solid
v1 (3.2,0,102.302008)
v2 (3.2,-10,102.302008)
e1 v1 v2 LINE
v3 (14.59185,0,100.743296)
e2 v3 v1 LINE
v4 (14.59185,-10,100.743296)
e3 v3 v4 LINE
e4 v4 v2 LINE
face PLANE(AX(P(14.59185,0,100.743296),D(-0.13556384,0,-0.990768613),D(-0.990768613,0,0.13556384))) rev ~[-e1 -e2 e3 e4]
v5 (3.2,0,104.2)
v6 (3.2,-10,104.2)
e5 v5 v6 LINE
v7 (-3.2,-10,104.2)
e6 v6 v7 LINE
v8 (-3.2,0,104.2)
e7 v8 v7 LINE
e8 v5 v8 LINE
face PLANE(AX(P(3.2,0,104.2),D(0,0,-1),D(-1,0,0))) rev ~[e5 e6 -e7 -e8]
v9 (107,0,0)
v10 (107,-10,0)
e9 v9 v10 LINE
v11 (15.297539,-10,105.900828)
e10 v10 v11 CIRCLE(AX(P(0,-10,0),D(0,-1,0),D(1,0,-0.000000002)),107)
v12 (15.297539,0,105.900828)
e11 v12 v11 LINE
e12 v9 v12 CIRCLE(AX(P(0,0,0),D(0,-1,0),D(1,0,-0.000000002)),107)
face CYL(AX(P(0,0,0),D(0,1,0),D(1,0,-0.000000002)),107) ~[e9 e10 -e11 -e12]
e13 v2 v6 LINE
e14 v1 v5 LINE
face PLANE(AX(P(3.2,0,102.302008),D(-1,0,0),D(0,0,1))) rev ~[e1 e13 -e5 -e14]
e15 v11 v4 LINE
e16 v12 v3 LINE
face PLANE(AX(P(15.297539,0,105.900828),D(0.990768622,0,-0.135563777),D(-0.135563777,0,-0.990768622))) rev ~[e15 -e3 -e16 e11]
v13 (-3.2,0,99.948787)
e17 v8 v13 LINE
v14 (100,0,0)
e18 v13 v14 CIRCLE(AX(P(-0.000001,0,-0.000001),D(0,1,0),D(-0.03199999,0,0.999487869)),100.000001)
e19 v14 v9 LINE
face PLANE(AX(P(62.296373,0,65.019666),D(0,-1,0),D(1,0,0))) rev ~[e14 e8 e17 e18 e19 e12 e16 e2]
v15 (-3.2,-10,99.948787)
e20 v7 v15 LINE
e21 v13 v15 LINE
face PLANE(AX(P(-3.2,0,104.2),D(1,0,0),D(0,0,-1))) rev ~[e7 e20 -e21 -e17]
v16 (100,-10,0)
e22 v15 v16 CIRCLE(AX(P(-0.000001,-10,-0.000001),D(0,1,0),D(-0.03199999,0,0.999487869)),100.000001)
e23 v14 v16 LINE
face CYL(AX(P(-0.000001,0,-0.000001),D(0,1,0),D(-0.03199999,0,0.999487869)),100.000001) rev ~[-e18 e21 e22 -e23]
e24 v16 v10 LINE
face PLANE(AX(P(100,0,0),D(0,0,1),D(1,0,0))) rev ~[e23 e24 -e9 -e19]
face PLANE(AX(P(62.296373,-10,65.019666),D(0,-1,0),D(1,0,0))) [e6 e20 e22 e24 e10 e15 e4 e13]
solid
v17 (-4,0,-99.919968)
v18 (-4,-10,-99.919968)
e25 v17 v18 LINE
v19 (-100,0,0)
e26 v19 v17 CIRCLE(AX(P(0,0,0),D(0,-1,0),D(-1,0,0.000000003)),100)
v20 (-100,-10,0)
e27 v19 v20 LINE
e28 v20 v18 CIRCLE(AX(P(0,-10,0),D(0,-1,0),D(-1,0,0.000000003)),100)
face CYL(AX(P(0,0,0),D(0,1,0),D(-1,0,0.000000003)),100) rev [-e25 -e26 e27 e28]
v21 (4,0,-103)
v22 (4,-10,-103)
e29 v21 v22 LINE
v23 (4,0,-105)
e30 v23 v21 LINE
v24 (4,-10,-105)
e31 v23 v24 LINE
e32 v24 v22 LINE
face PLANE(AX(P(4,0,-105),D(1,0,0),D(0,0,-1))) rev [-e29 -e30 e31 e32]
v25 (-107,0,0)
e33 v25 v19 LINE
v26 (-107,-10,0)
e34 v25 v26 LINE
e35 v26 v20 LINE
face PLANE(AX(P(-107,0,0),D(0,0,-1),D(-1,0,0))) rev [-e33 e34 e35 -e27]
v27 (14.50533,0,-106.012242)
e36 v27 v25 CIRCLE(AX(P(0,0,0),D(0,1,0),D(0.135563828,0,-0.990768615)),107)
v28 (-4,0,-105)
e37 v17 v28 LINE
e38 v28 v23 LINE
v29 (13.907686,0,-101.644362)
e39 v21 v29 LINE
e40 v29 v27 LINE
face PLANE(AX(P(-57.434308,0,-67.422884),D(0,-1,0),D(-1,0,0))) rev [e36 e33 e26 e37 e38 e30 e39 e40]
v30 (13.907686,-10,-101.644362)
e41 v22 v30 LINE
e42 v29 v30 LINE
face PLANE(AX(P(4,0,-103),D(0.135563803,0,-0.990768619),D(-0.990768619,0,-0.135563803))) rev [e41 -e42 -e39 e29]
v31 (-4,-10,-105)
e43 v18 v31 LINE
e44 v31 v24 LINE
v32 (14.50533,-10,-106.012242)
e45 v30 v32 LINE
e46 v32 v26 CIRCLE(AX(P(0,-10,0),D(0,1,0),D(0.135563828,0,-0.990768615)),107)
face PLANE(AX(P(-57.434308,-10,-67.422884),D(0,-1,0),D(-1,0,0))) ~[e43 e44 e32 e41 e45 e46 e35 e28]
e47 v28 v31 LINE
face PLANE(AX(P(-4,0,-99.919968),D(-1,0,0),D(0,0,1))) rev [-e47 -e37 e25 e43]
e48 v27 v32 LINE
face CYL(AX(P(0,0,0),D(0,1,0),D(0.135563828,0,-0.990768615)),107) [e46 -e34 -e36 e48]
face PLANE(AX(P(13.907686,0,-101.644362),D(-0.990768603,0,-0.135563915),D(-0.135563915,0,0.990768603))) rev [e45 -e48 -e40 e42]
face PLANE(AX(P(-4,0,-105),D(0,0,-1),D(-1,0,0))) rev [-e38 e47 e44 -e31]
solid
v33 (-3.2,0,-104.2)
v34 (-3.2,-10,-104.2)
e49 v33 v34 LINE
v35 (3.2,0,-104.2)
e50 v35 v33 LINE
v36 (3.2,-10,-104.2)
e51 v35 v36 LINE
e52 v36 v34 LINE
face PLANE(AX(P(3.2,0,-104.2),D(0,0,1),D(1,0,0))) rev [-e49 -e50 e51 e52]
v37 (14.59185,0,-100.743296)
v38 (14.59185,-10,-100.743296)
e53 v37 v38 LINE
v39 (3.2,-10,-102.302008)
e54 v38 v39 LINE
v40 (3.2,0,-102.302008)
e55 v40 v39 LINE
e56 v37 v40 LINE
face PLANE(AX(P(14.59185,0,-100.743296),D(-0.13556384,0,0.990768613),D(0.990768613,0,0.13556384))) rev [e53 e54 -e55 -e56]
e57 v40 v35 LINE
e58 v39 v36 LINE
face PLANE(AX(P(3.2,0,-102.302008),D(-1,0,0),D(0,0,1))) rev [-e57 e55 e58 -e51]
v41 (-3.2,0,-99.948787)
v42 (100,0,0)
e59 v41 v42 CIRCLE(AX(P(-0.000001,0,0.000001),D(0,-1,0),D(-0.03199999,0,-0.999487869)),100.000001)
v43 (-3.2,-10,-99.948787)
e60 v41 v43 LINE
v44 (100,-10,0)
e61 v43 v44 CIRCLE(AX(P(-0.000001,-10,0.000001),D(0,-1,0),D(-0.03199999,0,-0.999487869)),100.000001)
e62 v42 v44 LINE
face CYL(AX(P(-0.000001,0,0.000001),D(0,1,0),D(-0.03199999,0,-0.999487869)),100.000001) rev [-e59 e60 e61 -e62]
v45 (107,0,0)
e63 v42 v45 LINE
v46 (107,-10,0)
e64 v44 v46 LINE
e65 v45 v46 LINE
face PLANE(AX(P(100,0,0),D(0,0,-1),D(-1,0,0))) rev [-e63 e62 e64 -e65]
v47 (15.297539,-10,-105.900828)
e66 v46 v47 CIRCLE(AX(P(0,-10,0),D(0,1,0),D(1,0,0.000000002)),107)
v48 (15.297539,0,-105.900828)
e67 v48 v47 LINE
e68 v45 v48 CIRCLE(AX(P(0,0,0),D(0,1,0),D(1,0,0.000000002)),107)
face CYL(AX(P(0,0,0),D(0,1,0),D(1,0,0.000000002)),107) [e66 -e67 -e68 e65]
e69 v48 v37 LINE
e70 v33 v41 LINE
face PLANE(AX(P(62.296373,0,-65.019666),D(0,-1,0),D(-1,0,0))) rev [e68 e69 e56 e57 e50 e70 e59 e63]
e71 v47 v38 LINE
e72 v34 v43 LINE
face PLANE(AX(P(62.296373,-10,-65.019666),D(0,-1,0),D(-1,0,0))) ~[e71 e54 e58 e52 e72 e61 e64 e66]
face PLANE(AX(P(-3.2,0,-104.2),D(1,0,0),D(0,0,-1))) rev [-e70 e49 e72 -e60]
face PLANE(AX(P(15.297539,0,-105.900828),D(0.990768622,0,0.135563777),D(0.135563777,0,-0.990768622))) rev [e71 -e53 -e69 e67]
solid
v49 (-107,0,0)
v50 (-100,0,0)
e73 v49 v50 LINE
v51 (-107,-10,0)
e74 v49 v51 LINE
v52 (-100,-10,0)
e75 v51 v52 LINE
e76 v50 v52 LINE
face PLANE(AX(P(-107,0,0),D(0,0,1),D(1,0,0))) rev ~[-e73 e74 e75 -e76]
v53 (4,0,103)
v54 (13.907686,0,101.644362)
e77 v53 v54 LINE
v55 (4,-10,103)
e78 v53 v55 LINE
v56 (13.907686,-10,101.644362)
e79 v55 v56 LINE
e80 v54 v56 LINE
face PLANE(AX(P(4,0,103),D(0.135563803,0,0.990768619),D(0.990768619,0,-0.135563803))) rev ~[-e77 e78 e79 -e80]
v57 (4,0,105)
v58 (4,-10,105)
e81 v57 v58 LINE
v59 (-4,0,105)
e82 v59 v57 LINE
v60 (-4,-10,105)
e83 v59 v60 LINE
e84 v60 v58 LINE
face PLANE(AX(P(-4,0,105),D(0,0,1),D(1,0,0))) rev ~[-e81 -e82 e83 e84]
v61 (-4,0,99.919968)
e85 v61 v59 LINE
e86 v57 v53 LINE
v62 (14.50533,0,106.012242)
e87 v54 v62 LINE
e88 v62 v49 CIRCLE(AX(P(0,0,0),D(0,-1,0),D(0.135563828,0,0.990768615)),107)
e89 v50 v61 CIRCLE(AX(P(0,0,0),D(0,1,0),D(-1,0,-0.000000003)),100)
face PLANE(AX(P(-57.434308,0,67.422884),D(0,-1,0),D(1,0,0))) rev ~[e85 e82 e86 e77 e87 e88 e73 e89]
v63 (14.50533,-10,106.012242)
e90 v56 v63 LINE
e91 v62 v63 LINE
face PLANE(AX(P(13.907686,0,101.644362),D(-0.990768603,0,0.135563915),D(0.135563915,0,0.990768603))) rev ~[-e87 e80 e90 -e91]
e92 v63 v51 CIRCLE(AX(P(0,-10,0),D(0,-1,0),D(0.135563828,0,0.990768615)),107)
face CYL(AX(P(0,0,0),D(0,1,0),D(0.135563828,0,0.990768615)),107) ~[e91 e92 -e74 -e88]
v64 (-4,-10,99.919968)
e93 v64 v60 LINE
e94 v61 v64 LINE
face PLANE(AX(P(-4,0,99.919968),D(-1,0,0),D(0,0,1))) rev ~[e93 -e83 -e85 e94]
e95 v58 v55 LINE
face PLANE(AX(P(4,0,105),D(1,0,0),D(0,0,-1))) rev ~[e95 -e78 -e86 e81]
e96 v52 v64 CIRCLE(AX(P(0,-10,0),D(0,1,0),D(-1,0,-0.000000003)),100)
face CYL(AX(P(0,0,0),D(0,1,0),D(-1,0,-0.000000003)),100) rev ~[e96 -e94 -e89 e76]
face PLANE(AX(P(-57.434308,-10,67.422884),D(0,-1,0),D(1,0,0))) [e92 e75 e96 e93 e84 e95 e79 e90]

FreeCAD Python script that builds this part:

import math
import FreeCAD as App
import Part
import Sketcher
from FreeCAD import Vector

doc = App.newDocument("Part")
body = doc.addObject("PartDesign::Body", "Body")

sketch1 = body.newObject("Sketcher::SketchObject", "Sketch")
sketch1.AttachmentSupport = (doc.getObject("XZ_Plane"), [""])
sketch1.MapMode = "FlatFace"
sketch1.addGeometry([
    Part.LineSegment(Vector(4, 105, 0), Vector(4, 103, 0)),
    Part.LineSegment(Vector(4, 103, 0), Vector(13.907686, 101.644362, 0)),
    Part.LineSegment(Vector(13.907686, 101.644362, 0), Vector(14.50533, 106.012242, 0)),
    Part.ArcOfCircle(Part.Circle(Vector(0, 0, 0), Vector(0, 0, 1), 107), math.radians(82.208775), math.radians(180)),
    Part.LineSegment(Vector(-107, 0, 0), Vector(-100, 0, 0)),
    Part.ArcOfCircle(Part.Circle(Vector(0, 0, 0), Vector(0, 0, 1), 100), math.radians(92.292443), math.radians(180)),
    Part.LineSegment(Vector(-4, 99.919968, 0), Vector(-4, 105, 0)),
    Part.LineSegment(Vector(-4, 105, 0), Vector(4, 105, 0)),
], False)
sketch1.addConstraint([
    Sketcher.Constraint("Coincident", 0, 2, 1, 1),
    Sketcher.Constraint("Coincident", 1, 2, 2, 1),
    Sketcher.Constraint("Coincident", 2, 2, 3, 1),
    Sketcher.Constraint("Coincident", 3, 2, 4, 1),
    Sketcher.Constraint("Coincident", 4, 2, 5, 2),
    Sketcher.Constraint("Coincident", 5, 1, 6, 1),
    Sketcher.Constraint("Coincident", 6, 2, 7, 1),
    Sketcher.Constraint("Coincident", 7, 2, 0, 1),
    Sketcher.Constraint("Vertical", 0),
    Sketcher.Constraint("Horizontal", 4),
    Sketcher.Constraint("Vertical", 6),
    Sketcher.Constraint("Horizontal", 7),
    Sketcher.Constraint("Coincident", 3, 3, -1, 1),
    Sketcher.Constraint("Coincident", 5, 3, -1, 1),
    Sketcher.Constraint("PointOnObject", 3, 2, -1),
    Sketcher.Constraint("Perpendicular", 1, 2),
    Sketcher.Constraint("Radius", 3, 107.0),
    Sketcher.Constraint("Radius", 5, 100.0),
    Sketcher.Constraint("DistanceX", 7, 1, 7, 2, 8.0),
    Sketcher.Constraint("DistanceY", 0, 2, 0, 1, 2.0),
    Sketcher.Constraint("Distance", 1, 10.0),
    Sketcher.Constraint("DistanceX", -1, 1, 0, 2, 4.0),
    Sketcher.Constraint("DistanceY", -1, 1, 0, 2, 103.0),
    Sketcher.Constraint("DistanceY", -1, 1, 1, 2, 101.644362),
])
pad1 = body.newObject("PartDesign::Pad", "Pad")
pad1.Profile = sketch1
pad1.Length = 10
body2 = doc.addObject("PartDesign::Body", "Body001")
doc.recompute()

mirroring = doc.addObject("Part::Mirroring", "Mirroring")
mirroring.Source = body
mirroring.Base = Vector(0, 0, 0)
mirroring.Normal = Vector(0, 0, 1)
body2.BaseFeature = mirroring
doc.recompute()
body3 = doc.addObject("PartDesign::Body", "Body002")

sketch2 = body3.newObject("Sketcher::SketchObject", "Sketch001")
sketch2.AttachmentSupport = (doc.getObject("XZ_Plane002"), [""])
sketch2.MapMode = "FlatFace"
sketch2.addGeometry([
    Part.ArcOfCircle(Part.Circle(Vector(-0.000001, -0.000001, 0), Vector(0, 0, 1), 100.000001), math.radians(0.000001), math.radians(91.833777)),
    Part.LineSegment(Vector(100, 0, 0), Vector(107, 0, 0)),
    Part.ArcOfCircle(Part.Circle(Vector(0, 0, 0), Vector(0, 0, 1), 107), math.radians(0), math.radians(81.780392)),
    Part.LineSegment(Vector(15.297539, 105.900828, 0), Vector(14.59185, 100.743296, 0)),
    Part.LineSegment(Vector(14.59185, 100.743296, 0), Vector(3.2, 102.302008, 0)),
    Part.LineSegment(Vector(3.2, 102.302008, 0), Vector(3.2, 104.2, 0)),
    Part.LineSegment(Vector(3.2, 104.2, 0), Vector(-3.2, 104.2, 0)),
    Part.LineSegment(Vector(-3.2, 104.2, 0), Vector(-3.2, 99.948787, 0)),
], False)
sketch2.addConstraint([
    Sketcher.Constraint("Coincident", 0, 1, 1, 1),
    Sketcher.Constraint("Coincident", 1, 2, 2, 1),
    Sketcher.Constraint("Coincident", 2, 2, 3, 1),
    Sketcher.Constraint("Coincident", 3, 2, 4, 1),
    Sketcher.Constraint("Coincident", 4, 2, 5, 1),
    Sketcher.Constraint("Coincident", 5, 2, 6, 1),
    Sketcher.Constraint("Coincident", 6, 2, 7, 1),
    Sketcher.Constraint("Coincident", 7, 2, 0, 2),
    Sketcher.Constraint("Horizontal", 1),
    Sketcher.Constraint("Vertical", 5),
    Sketcher.Constraint("Horizontal", 6),
    Sketcher.Constraint("Vertical", 7),
    Sketcher.Constraint("Coincident", 0, 3, -1, 1),
    Sketcher.Constraint("Coincident", 2, 3, -1, 1),
    Sketcher.Constraint("PointOnObject", 0, 1, -1),
    Sketcher.Constraint("Perpendicular", 3, 4),
    Sketcher.Constraint("Radius", 0, 100.000001),
    Sketcher.Constraint("Radius", 2, 107.0),
    Sketcher.Constraint("DistanceX", 6, 2, 6, 1, 6.4),
    Sketcher.Constraint("DistanceX", -1, 1, 4, 2, 3.2),
    Sketcher.Constraint("DistanceY", -1, 1, 5, 2, 104.2),
    Sketcher.Constraint("DistanceY", 5, 1, 5, 2, 1.897992),
    Sketcher.Constraint("DistanceX", -1, 1, 2, 2, 15.297539),
    Sketcher.Constraint("DistanceX", -1, 1, 3, 2, 14.59185),
])
pad2 = body3.newObject("PartDesign::Pad", "Pad001")
pad2.Profile = sketch2
pad2.Length = 10
body4 = doc.addObject("PartDesign::Body", "Body003")
doc.recompute()

mirroring2 = doc.addObject("Part::Mirroring", "Mirroring001")
mirroring2.Source = body3
mirroring2.Base = Vector(0, 0, 0)
mirroring2.Normal = Vector(0, 0, 1)
body4.BaseFeature = mirroring2
doc.recompute()
mirroring.Visibility = False
mirroring2.Visibility = False

doc.recompute()
